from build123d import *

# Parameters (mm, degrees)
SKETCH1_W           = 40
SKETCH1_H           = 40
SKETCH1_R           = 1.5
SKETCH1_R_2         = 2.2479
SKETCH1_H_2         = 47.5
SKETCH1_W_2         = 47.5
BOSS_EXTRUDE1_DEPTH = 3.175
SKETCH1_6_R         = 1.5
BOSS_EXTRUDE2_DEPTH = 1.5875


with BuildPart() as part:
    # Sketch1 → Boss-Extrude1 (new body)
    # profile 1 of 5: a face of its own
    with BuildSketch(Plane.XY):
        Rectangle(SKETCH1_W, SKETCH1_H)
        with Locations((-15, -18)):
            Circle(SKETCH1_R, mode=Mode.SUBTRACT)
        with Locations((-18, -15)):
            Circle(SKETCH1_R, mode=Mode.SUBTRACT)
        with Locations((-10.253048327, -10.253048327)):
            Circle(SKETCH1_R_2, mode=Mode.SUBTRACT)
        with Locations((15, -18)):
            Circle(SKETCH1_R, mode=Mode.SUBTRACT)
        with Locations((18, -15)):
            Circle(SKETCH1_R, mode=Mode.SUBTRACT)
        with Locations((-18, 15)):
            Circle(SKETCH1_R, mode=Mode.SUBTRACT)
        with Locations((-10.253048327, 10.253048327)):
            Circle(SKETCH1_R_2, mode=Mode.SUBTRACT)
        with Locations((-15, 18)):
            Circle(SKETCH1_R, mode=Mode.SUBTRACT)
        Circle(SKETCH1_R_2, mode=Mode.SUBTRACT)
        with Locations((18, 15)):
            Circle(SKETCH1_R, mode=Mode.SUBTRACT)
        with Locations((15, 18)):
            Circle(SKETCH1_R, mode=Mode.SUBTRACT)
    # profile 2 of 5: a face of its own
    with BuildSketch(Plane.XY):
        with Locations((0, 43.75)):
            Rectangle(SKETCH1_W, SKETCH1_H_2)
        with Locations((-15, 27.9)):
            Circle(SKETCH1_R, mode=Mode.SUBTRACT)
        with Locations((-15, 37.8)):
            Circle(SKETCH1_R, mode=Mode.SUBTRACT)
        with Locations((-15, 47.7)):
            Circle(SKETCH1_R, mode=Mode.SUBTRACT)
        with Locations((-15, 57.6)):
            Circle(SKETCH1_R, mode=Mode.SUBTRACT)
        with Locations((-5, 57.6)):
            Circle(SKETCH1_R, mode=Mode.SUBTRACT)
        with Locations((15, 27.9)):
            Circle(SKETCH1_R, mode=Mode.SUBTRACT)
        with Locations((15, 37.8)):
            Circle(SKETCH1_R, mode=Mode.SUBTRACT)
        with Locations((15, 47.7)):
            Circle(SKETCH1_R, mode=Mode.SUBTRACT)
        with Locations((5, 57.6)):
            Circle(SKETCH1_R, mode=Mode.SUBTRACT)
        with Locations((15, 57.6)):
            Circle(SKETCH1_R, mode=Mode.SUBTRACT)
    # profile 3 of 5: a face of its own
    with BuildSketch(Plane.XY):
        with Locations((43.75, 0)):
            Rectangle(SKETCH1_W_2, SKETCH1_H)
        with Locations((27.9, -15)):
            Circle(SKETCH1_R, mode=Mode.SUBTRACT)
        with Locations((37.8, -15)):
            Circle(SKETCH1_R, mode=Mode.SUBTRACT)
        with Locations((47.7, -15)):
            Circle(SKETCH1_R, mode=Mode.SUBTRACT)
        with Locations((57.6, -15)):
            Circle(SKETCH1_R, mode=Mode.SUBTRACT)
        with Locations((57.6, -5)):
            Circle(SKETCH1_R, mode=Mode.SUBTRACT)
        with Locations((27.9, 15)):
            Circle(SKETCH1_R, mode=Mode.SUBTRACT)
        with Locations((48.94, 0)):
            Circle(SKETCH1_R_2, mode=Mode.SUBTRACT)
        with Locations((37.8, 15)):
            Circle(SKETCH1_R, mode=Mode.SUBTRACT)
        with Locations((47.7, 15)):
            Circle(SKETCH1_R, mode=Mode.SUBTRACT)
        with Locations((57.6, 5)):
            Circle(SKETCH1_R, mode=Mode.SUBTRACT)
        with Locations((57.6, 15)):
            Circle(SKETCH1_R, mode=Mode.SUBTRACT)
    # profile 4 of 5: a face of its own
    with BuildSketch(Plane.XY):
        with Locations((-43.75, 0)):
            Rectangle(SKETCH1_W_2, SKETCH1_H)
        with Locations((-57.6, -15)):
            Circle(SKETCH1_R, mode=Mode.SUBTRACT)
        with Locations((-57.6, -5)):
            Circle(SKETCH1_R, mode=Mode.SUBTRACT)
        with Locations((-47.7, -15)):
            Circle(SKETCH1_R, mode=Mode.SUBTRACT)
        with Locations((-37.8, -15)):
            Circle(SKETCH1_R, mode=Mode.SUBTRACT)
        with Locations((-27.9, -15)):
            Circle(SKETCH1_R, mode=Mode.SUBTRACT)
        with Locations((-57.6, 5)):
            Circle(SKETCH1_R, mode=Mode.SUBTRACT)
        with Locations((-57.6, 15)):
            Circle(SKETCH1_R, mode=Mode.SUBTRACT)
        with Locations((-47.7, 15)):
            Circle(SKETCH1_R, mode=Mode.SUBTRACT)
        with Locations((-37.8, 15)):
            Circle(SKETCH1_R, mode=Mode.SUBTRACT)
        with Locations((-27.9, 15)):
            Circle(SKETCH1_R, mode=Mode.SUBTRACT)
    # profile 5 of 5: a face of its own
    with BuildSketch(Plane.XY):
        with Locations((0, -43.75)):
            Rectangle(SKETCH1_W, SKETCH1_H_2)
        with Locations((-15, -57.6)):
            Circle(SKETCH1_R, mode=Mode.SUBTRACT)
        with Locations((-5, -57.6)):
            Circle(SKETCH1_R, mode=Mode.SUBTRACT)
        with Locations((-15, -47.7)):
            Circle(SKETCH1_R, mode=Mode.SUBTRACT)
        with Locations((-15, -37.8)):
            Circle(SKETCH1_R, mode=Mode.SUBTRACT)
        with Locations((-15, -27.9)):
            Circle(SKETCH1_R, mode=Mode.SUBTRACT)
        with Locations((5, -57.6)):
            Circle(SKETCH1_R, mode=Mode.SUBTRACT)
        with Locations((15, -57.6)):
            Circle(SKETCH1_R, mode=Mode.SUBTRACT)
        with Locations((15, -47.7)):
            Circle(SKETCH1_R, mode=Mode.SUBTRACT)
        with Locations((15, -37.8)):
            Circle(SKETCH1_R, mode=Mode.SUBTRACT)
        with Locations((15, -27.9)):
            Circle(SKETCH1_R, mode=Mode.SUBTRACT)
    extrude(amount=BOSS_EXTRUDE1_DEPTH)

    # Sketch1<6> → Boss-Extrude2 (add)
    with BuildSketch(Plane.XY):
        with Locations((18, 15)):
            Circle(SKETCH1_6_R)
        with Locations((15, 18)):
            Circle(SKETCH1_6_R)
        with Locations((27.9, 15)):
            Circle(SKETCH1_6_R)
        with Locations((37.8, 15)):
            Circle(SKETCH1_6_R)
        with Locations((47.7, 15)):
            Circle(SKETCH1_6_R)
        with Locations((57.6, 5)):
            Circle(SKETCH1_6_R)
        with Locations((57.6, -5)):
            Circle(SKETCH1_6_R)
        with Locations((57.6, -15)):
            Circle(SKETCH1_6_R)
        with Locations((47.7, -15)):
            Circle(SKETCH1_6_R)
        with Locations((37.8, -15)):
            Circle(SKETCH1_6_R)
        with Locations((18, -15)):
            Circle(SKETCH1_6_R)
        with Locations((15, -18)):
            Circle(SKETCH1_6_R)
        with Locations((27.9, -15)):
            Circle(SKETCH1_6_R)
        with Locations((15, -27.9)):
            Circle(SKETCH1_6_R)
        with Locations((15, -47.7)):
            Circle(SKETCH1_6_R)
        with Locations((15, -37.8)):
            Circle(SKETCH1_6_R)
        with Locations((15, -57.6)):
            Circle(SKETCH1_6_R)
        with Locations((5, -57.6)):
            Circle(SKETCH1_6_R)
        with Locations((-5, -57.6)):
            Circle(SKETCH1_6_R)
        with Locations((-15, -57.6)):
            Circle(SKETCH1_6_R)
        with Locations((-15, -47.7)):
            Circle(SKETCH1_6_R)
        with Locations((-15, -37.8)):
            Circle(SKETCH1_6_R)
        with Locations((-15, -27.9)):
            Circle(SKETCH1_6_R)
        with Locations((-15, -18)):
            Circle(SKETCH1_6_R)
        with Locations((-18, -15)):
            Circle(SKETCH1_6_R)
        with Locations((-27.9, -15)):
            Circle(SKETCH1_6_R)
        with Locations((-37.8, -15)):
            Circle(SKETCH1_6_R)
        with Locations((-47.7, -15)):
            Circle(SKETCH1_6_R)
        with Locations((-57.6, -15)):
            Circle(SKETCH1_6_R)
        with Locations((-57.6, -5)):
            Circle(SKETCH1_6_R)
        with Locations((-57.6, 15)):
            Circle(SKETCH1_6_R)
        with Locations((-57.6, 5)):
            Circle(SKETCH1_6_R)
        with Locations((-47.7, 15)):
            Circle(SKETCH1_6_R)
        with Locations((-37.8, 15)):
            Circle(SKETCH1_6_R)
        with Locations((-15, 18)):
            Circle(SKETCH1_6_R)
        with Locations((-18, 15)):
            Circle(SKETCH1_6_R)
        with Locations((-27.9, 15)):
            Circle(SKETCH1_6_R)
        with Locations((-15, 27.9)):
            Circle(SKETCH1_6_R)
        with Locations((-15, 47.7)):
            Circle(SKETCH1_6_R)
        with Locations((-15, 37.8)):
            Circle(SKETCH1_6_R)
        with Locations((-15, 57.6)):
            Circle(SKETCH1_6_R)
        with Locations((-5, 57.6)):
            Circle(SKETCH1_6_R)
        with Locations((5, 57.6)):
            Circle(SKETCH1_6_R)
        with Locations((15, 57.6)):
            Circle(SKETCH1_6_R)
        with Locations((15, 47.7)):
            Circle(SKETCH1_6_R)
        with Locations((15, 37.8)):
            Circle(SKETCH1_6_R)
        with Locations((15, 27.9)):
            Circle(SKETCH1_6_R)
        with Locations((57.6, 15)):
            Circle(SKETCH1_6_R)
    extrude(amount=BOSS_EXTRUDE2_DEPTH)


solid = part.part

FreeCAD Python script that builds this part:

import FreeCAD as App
import Part
import Sketcher

V = App.Vector
Q = App.Units.Quantity

doc = App.newDocument("Part")
body = doc.addObject("PartDesign::Body", "Body")

# Sketch on XY plane
sketch1 = body.newObject("Sketcher::SketchObject", "Sketch")
sketch1.AttachmentSupport = (doc.getObject("XY_Plane"), [""])
sketch1.MapMode = "FlatFace"
sketch1.addGeometry(Part.LineSegment(V(-67.5, 20, 0), V(-67.5, -20, 0)), False)
sketch1.addGeometry(Part.LineSegment(V(-67.5, -20, 0), V(-20, -20, 0)), False)
sketch1.addGeometry(Part.LineSegment(V(-20, -20, 0), V(-20, -67.5, 0)), False)
sketch1.addGeometry(Part.LineSegment(V(-20, -67.5, 0), V(20, -67.5, 0)), False)
sketch1.addGeometry(Part.LineSegment(V(20, -67.5, 0), V(20, -20, 0)), False)
sketch1.addGeometry(Part.LineSegment(V(20, -20, 0), V(67.5, -20, 0)), False)
sketch1.addGeometry(Part.LineSegment(V(67.5, -20, 0), V(67.5, 20, 0)), False)
sketch1.addGeometry(Part.LineSegment(V(67.5, 20, 0), V(20, 20, 0)), False)
sketch1.addGeometry(Part.LineSegment(V(20, 20, 0), V(20, 67.5, 0)), False)
sketch1.addGeometry(Part.LineSegment(V(20, 67.5, 0), V(-20, 67.5, 0)), False)
sketch1.addGeometry(Part.LineSegment(V(-20, 67.5, 0), V(-20, 20, 0)), False)
sketch1.addGeometry(Part.LineSegment(V(-20, 20, 0), V(-67.5, 20, 0)), False)
sketch1.addGeometry(Part.Circle(V(-15, -18, 0), V(0, 0, 1), 1.5), False)
sketch1.addGeometry(Part.Circle(V(-18, -15, 0), V(0, 0, 1), 1.5), False)
sketch1.addGeometry(Part.Circle(V(-10.3, -10.3, 0), V(0, 0, 1), 2.2), False)
sketch1.addGeometry(Part.Circle(V(15, -18, 0), V(0, 0, 1), 1.5), False)
sketch1.addGeometry(Part.Circle(V(18, -15, 0), V(0, 0, 1), 1.5), False)
sketch1.addGeometry(Part.Circle(V(-10.3, 10.3, 0), V(0, 0, 1), 2.2), False)
sketch1.addGeometry(Part.Circle(V(-18, 15, 0), V(0, 0, 1), 1.5), False)
sketch1.addGeometry(Part.Circle(V(-15, 18, 0), V(0, 0, 1), 1.5), False)
sketch1.addGeometry(Part.Circle(V(0, 0, 0), V(0, 0, 1), 2.2), False)
sketch1.addGeometry(Part.Circle(V(18, 15, 0), V(0, 0, 1), 1.5), False)
sketch1.addGeometry(Part.Circle(V(15, 18, 0), V(0, 0, 1), 1.5), False)
sketch1.addGeometry(Part.Circle(V(-27.9, 15, 0), V(0, 0, 1), 1.5), False)
sketch1.addGeometry(Part.Circle(V(-57.6, -15, 0), V(0, 0, 1), 1.5), False)
sketch1.addGeometry(Part.Circle(V(-47.7, -15, 0), V(0, 0, 1), 1.5), False)
sketch1.addGeometry(Part.Circle(V(-57.6, -5, 0), V(0, 0, 1), 1.5), False)
sketch1.addGeometry(Part.Circle(V(-37.8, -15, 0), V(0, 0, 1), 1.5), False)
sketch1.addGeometry(Part.Circle(V(-27.9, -15, 0), V(0, 0, 1), 1.5), False)
sketch1.addGeometry(Part.Circle(V(-57.6, 5, 0), V(0, 0, 1), 1.5), False)
sketch1.addGeometry(Part.Circle(V(-57.6, 15, 0), V(0, 0, 1), 1.5), False)
sketch1.addGeometry(Part.Circle(V(-47.7, 15, 0), V(0, 0, 1), 1.5), False)
sketch1.addGeometry(Part.Circle(V(-37.8, 15, 0), V(0, 0, 1), 1.5), False)
sketch1.addGeometry(Part.Circle(V(15, -27.9, 0), V(0, 0, 1), 1.5), False)
sketch1.addGeometry(Part.Circle(V(-15, -57.6, 0), V(0, 0, 1), 1.5), False)
sketch1.addGeometry(Part.Circle(V(-5, -57.6, 0), V(0, 0, 1), 1.5), False)
sketch1.addGeometry(Part.Circle(V(-15, -47.7, 0), V(0, 0, 1), 1.5), False)
sketch1.addGeometry(Part.Circle(V(5, -57.6, 0), V(0, 0, 1), 1.5), False)
sketch1.addGeometry(Part.Circle(V(15, -57.6, 0), V(0, 0, 1), 1.5), False)
sketch1.addGeometry(Part.Circle(V(15, -47.7, 0), V(0, 0, 1), 1.5), False)
sketch1.addGeometry(Part.Circle(V(-15, -37.8, 0), V(0, 0, 1), 1.5), False)
sketch1.addGeometry(Part.Circle(V(-15, -27.9, 0), V(0, 0, 1), 1.5), False)
sketch1.addGeometry(Part.Circle(V(15, -37.8, 0), V(0, 0, 1), 1.5), False)
sketch1.addGeometry(Part.Circle(V(15, 57.6, 0), V(0, 0, 1), 1.5), False)
sketch1.addGeometry(Part.Circle(V(-15, 27.9, 0), V(0, 0, 1), 1.5), False)
sketch1.addGeometry(Part.Circle(V(-15, 37.8, 0), V(0, 0, 1), 1.5), False)
sketch1.addGeometry(Part.Circle(V(15, 27.9, 0), V(0, 0, 1), 1.5), False)
sketch1.addGeometry(Part.Circle(V(15, 37.8, 0), V(0, 0, 1), 1.5), False)
sketch1.addGeometry(Part.Circle(V(-15, 47.7, 0), V(0, 0, 1), 1.5), False)
sketch1.addGeometry(Part.Circle(V(-15, 57.6, 0), V(0, 0, 1), 1.5), False)
sketch1.addGeometry(Part.Circle(V(-5, 57.6, 0), V(0, 0, 1), 1.5), False)
sketch1.addGeometry(Part.Circle(V(15, 47.7, 0), V(0, 0, 1), 1.5), False)
sketch1.addGeometry(Part.Circle(V(5, 57.6, 0), V(0, 0, 1), 1.5), False)
sketch1.addGeometry(Part.Circle(V(57.6, 15, 0), V(0, 0, 1), 1.5), False)
sketch1.addGeometry(Part.Circle(V(27.9, -15, 0), V(0, 0, 1), 1.5), False)
sketch1.addGeometry(Part.Circle(V(37.8, -15, 0), V(0, 0, 1), 1.5), False)
sketch1.addGeometry(Part.Circle(V(47.7, -15, 0), V(0, 0, 1), 1.5), False)
sketch1.addGeometry(Part.Circle(V(57.6, -15, 0), V(0, 0, 1), 1.5), False)
sketch1.addGeometry(Part.Circle(V(57.6, -5, 0), V(0, 0, 1), 1.5), False)
sketch1.addGeometry(Part.Circle(V(27.9, 15, 0), V(0, 0, 1), 1.5), False)
sketch1.addGeometry(Part.Circle(V(37.8, 15, 0), V(0, 0, 1), 1.5), False)
sketch1.addGeometry(Part.Circle(V(48.9, 0, 0), V(0, 0, 1), 2.2), False)
sketch1.addGeometry(Part.Circle(V(57.6, 5, 0), V(0, 0, 1), 1.5), False)
sketch1.addGeometry(Part.Circle(V(47.7, 15, 0), V(0, 0, 1), 1.5), False)
sketch1.addConstraint(Sketcher.Constraint("Coincident", 0, 2, 1, 1))
sketch1.addConstraint(Sketcher.Constraint("Coincident", 1, 2, 2, 1))
sketch1.addConstraint(Sketcher.Constraint("Coincident", 2, 2, 3, 1))
sketch1.addConstraint(Sketcher.Constraint("Coincident", 3, 2, 4, 1))
sketch1.addConstraint(Sketcher.Constraint("Coincident", 4, 2, 5, 1))
sketch1.addConstraint(Sketcher.Constraint("Coincident", 5, 2, 6, 1))
sketch1.addConstraint(Sketcher.Constraint("Coincident", 6, 2, 7, 1))
sketch1.addConstraint(Sketcher.Constraint("Coincident", 7, 2, 8, 1))
sketch1.addConstraint(Sketcher.Constraint("Coincident", 8, 2, 9, 1))
sketch1.addConstraint(Sketcher.Constraint("Coincident", 9, 2, 10, 1))
sketch1.addConstraint(Sketcher.Constraint("Coincident", 10, 2, 11, 1))
sketch1.addConstraint(Sketcher.Constraint("Coincident", 11, 2, 0, 1))
sketch1.addConstraint(Sketcher.Constraint("Vertical", 0))
sketch1.addConstraint(Sketcher.Constraint("Horizontal", 1))
sketch1.addConstraint(Sketcher.Constraint("Vertical", 2))
sketch1.addConstraint(Sketcher.Constraint("Horizontal", 3))
sketch1.addConstraint(Sketcher.Constraint("Vertical", 4))
sketch1.addConstraint(Sketcher.Constraint("Horizontal", 5))
sketch1.addConstraint(Sketcher.Constraint("Vertical", 6))
sketch1.addConstraint(Sketcher.Constraint("Horizontal", 7))
sketch1.addConstraint(Sketcher.Constraint("Vertical", 8))
sketch1.addConstraint(Sketcher.Constraint("Horizontal", 9))
sketch1.addConstraint(Sketcher.Constraint("Vertical", 10))
sketch1.addConstraint(Sketcher.Constraint("Horizontal", 11))
sketch1.addConstraint(Sketcher.Constraint("Coincident", 20, 3, -1, 1))
sketch1.addConstraint(Sketcher.Constraint("Equal", 12, 13))
sketch1.addConstraint(Sketcher.Constraint("Equal", 13, 15))
sketch1.addConstraint(Sketcher.Constraint("Equal", 15, 16))
sketch1.addConstraint(Sketcher.Constraint("Equal", 14, 17))
sketch1.addConstraint(Sketcher.Constraint("Equal", 16, 18))
sketch1.addConstraint(Sketcher.Constraint("Equal", 18, 19))
sketch1.addConstraint(Sketcher.Constraint("Equal", 17, 20))
sketch1.addConstraint(Sketcher.Constraint("Equal", 19, 21))
sketch1.addConstraint(Sketcher.Constraint("Equal", 21, 22))
sketch1.addConstraint(Sketcher.Constraint("Equal", 22, 23))
sketch1.addConstraint(Sketcher.Constraint("Equal", 23, 24))
sketch1.addConstraint(Sketcher.Constraint("Equal", 24, 25))
sketch1.addConstraint(Sketcher.Constraint("Equal", 25, 26))
sketch1.addConstraint(Sketcher.Constraint("Equal", 26, 27))
sketch1.addConstraint(Sketcher.Constraint("Equal", 27, 28))
sketch1.addConstraint(Sketcher.Constraint("Equal", 28, 29))
sketch1.addConstraint(Sketcher.Constraint("Equal", 29, 30))
sketch1.addConstraint(Sketcher.Constraint("Equal", 30, 31))
sketch1.addConstraint(Sketcher.Constraint("Equal", 31, 32))
sketch1.addConstraint(Sketcher.Constraint("Equal", 32, 33))
sketch1.addConstraint(Sketcher.Constraint("Equal", 33, 34))
sketch1.addConstraint(Sketcher.Constraint("Equal", 34, 35))
sketch1.addConstraint(Sketcher.Constraint("Equal", 35, 36))
sketch1.addConstraint(Sketcher.Constraint("Equal", 36, 37))
sketch1.addConstraint(Sketcher.Constraint("Equal", 37, 38))
sketch1.addConstraint(Sketcher.Constraint("Equal", 38, 39))
sketch1.addConstraint(Sketcher.Constraint("Equal", 39, 40))
sketch1.addConstraint(Sketcher.Constraint("Equal", 40, 41))
sketch1.addConstraint(Sketcher.Constraint("Equal", 41, 42))
sketch1.addConstraint(Sketcher.Constraint("Equal", 42, 43))
sketch1.addConstraint(Sketcher.Constraint("Equal", 43, 44))
sketch1.addConstraint(Sketcher.Constraint("Equal", 44, 45))
sketch1.addConstraint(Sketcher.Constraint("Equal", 45, 46))
sketch1.addConstraint(Sketcher.Constraint("Equal", 46, 47))
sketch1.addConstraint(Sketcher.Constraint("Equal", 47, 48))
sketch1.addConstraint(Sketcher.Constraint("Equal", 48, 49))
sketch1.addConstraint(Sketcher.Constraint("Equal", 49, 50))
sketch1.addConstraint(Sketcher.Constraint("Equal", 50, 51))
sketch1.addConstraint(Sketcher.Constraint("Equal", 51, 52))
sketch1.addConstraint(Sketcher.Constraint("Equal", 52, 53))
sketch1.addConstraint(Sketcher.Constraint("Equal", 53, 54))
sketch1.addConstraint(Sketcher.Constraint("Equal", 54, 55))
sketch1.addConstraint(Sketcher.Constraint("Equal", 55, 56))
sketch1.addConstraint(Sketcher.Constraint("Equal", 56, 57))
sketch1.addConstraint(Sketcher.Constraint("Equal", 57, 58))
sketch1.addConstraint(Sketcher.Constraint("Equal", 58, 59))
sketch1.addConstraint(Sketcher.Constraint("Equal", 59, 60))
sketch1.addConstraint(Sketcher.Constraint("Equal", 20, 61))
sketch1.addConstraint(Sketcher.Constraint("Equal", 60, 62))
sketch1.addConstraint(Sketcher.Constraint("Equal", 62, 63))
sketch1.addConstraint(Sketcher.Constraint("Symmetric", 16, 3, 18, 3, -1, 1))
sketch1.addConstraint(Sketcher.Constraint("Symmetric", 15, 3, 19, 3, -1, 1))
sketch1.addConstraint(Sketcher.Constraint("Symmetric", 13, 3, 21, 3, -1, 1))
sketch1.addConstraint(Sketcher.Constraint("Symmetric", 12, 3, 22, 3, -1, 1))
sketch1.addConstraint(Sketcher.Constraint("Symmetric", 34, 3, 43, 3, -1, 1))
sketch1.addConstraint(Sketcher.Constraint("Symmetric", 33, 3, 44, 3, -1, 1))
sketch1.addConstraint(Sketcher.Constraint("Symmetric", 42, 3, 45, 3, -1, 1))
sketch1.addConstraint(Sketcher.Constraint("Symmetric", 41, 3, 46, 3, -1, 1))
sketch1.addConstraint(Sketcher.Constraint("Symmetric", 40, 3, 47, 3, -1, 1))
sketch1.addConstraint(Sketcher.Constraint("Symmetric", 39, 3, 48, 3, -1, 1))
sketch1.addConstraint(Sketcher.Constraint("Symmetric", 38, 3, 49, 3, -1, 1))
sketch1.addConstraint(Sketcher.Constraint("Symmetric", 37, 3, 50, 3, -1, 1))
sketch1.addConstraint(Sketcher.Constraint("Symmetric", 36, 3, 51, 3, -1, 1))
sketch1.addConstraint(Sketcher.Constraint("Symmetric", 35, 3, 52, 3, -1, 1))
sketch1.addConstraint(Sketcher.Constraint("Symmetric", 24, 3, 53, 3, -1, 1))
sketch1.addConstraint(Sketcher.Constraint("Symmetric", 23, 3, 54, 3, -1, 1))
sketch1.addConstraint(Sketcher.Constraint("Symmetric", 32, 3, 55, 3, -1, 1))
sketch1.addConstraint(Sketcher.Constraint("Symmetric", 31, 3, 56, 3, -1, 1))
sketch1.addConstraint(Sketcher.Constraint("Symmetric", 30, 3, 57, 3, -1, 1))
sketch1.addConstraint(Sketcher.Constraint("Symmetric", 29, 3, 58, 3, -1, 1))
sketch1.addConstraint(Sketcher.Constraint("Symmetric", 28, 3, 59, 3, -1, 1))
sketch1.addConstraint(Sketcher.Constraint("Symmetric", 27, 3, 60, 3, -1, 1))
sketch1.addConstraint(Sketcher.Constraint("Symmetric", 26, 3, 62, 3, -1, 1))
sketch1.addConstraint(Sketcher.Constraint("Symmetric", 25, 3, 63, 3, -1, 1))
sketch1.addConstraint(Sketcher.Constraint("Symmetric", 0, 2, 6, 2, -1, 1))
sketch1.addConstraint(Sketcher.Constraint("Symmetric", 2, 2, 8, 2, -1, 1))
sketch1.addConstraint(Sketcher.Constraint("Symmetric", 4, 2, 10, 2, -1, 1))
sketch1.addConstraint(Sketcher.Constraint("Symmetric", 12, 3, 15, 3, -2))
sketch1.addConstraint(Sketcher.Constraint("Symmetric", 13, 3, 16, 3, -2))
sketch1.addConstraint(Sketcher.Constraint("Symmetric", 35, 3, 37, 3, -2))
sketch1.addConstraint(Sketcher.Constraint("Symmetric", 34, 3, 38, 3, -2))
sketch1.addConstraint(Sketcher.Constraint("Symmetric", 36, 3, 39, 3, -2))
sketch1.addConstraint(Sketcher.Constraint("Symmetric", 33, 3, 41, 3, -2))
sketch1.addConstraint(Sketcher.Constraint("Symmetric", 40, 3, 42, 3, -2))
sketch1.addConstraint(Sketcher.Constraint("Symmetric", 30, 3, 53, 3, -2))
sketch1.addConstraint(Sketcher.Constraint("Symmetric", 28, 3, 54, 3, -2))
sketch1.addConstraint(Sketcher.Constraint("Symmetric", 27, 3, 55, 3, -2))
sketch1.addConstraint(Sketcher.Constraint("Symmetric", 25, 3, 56, 3, -2))
sketch1.addConstraint(Sketcher.Constraint("Symmetric", 26, 3, 58, 3, -2))
sketch1.addConstraint(Sketcher.Constraint("Symmetric", 1, 2, 4, 2, -2))
sketch1.addConstraint(Sketcher.Constraint("Symmetric", 14, 3, 17, 3, -1))
sketch1.addConstraint(Sketcher.Constraint("PointOnObject", 61, 3, -1))
sketch1.addConstraint(Sketcher.Constraint("Horizontal", 21, 3, 23, 3))
sketch1.addConstraint(Sketcher.Constraint("Horizontal", 16, 3, 24, 3))
sketch1.addConstraint(Sketcher.Constraint("Horizontal", 24, 3, 25, 3))
sketch1.addConstraint(Sketcher.Constraint("Horizontal", 25, 3, 27, 3))
sketch1.addConstraint(Sketcher.Constraint("Horizontal", 34, 3, 35, 3))
sketch1.addConstraint(Sketcher.Constraint("Vertical", 24, 3, 26, 3))
sketch1.addConstraint(Sketcher.Constraint("Vertical", 22, 3, 33, 3))
sketch1.addConstraint(Sketcher.Constraint("Vertical", 19, 3, 34, 3))
sketch1.addConstraint(Sketcher.Constraint("Vertical", 34, 3, 36, 3))
sketch1.addConstraint(Sketcher.Constraint("Vertical", 36, 3, 40, 3))
sketch1.addConstraint(Sketcher.Constraint("Equal", 9, 0))
sketch1.addConstraint(Sketcher.Constraint("Equal", 11, 2))
sketch1.addConstraint(Sketcher.Constraint("Diameter", 12, Q("3 mm")))
sketch1.addConstraint(Sketcher.Constraint("DistanceX", 3, 1, 3, 2, Q("40 mm")))
sketch1.addConstraint(Sketcher.Constraint("DistanceX", 1, 1, 1, 2, Q("47.5 mm")))
sketch1.addConstraint(Sketcher.Constraint("DistanceX", 12, 3, -1, 1, Q("15 mm")))
sketch1.addConstraint(Sketcher.Constraint("DistanceY", 12, 3, -1, 1, Q("18 mm")))
sketch1.addConstraint(Sketcher.Constraint("DistanceX", 13, 3, -1, 1, Q("18 mm")))
sketch1.addConstraint(Sketcher.Constraint("DistanceY", 13, 3, -1, 1, Q("15 mm")))
sketch1.addConstraint(Sketcher.Constraint("DistanceY", 26, 3, -1, 1, Q("5 mm")))
sketch1.addConstraint(Sketcher.Constraint("DistanceX", 35, 3, -1, 1, Q("5 mm")))
sketch1.addConstraint(Sketcher.Constraint("Diameter", 14, Q("4.4958 mm")))
sketch1.addConstraint(Sketcher.Constraint("DistanceX", 23, 3, -1, 1, Q("27.9 mm")))
sketch1.addConstraint(Sketcher.Constraint("DistanceX", 24, 3, -1, 1, Q("57.6 mm")))
sketch1.addConstraint(Sketcher.Constraint("DistanceX", 25, 3, -1, 1, Q("47.7 mm")))
sketch1.addConstraint(Sketcher.Constraint("DistanceX", 27, 3, -1, 1, Q("37.8 mm")))
sketch1.addConstraint(Sketcher.Constraint("DistanceY", 33, 3, -1, 1, Q("27.9 mm")))
sketch1.addConstraint(Sketcher.Constraint("DistanceY", 34, 3, -1, 1, Q("57.6 mm")))
sketch1.addConstraint(Sketcher.Constraint("DistanceY", 36, 3, -1, 1, Q("47.7 mm")))
sketch1.addConstraint(Sketcher.Constraint("DistanceY", 40, 3, -1, 1, Q("37.8 mm")))
sketch1.addConstraint(Sketcher.Constraint("DistanceX", -1, 1, 61, 3, Q("48.94 mm")))
sketch1.addConstraint(Sketcher.Constraint("DistanceX", 14, 3, -1, 1, Q("10.253048 mm")))
sketch1.addConstraint(Sketcher.Constraint("DistanceY", 14, 3, -1, 1, Q("10.253048 mm")))
pad1 = body.newObject("PartDesign::Pad", "Pad")
pad1.Profile = sketch1
pad1.Length = 3.175

# Sketch on XY plane
sketch2 = body.newObject("Sketcher::SketchObject", "Sketch001")
sketch2.AttachmentSupport = (doc.getObject("XY_Plane"), [""])
sketch2.MapMode = "FlatFace"
sketch2.addGeometry(Part.Circle(V(18, 15, 0), V(0, 0, 1), 1.5), False)
sketch2.addGeometry(Part.Circle(V(15, 18, 0), V(0, 0, 1), 1.5), False)
sketch2.addGeometry(Part.Circle(V(27.9, 15, 0), V(0, 0, 1), 1.5), False)
sketch2.addGeometry(Part.Circle(V(37.8, 15, 0), V(0, 0, 1), 1.5), False)
sketch2.addGeometry(Part.Circle(V(47.7, 15, 0), V(0, 0, 1), 1.5), False)
sketch2.addGeometry(Part.Circle(V(57.6, 5, 0), V(0, 0, 1), 1.5), False)
sketch2.addGeometry(Part.Circle(V(57.6, -5, 0), V(0, 0, 1), 1.5), False)
sketch2.addGeometry(Part.Circle(V(57.6, -15, 0), V(0, 0, 1), 1.5), False)
sketch2.addGeometry(Part.Circle(V(47.7, -15, 0), V(0, 0, 1), 1.5), False)
sketch2.addGeometry(Part.Circle(V(37.8, -15, 0), V(0, 0, 1), 1.5), False)
sketch2.addGeometry(Part.Circle(V(18, -15, 0), V(0, 0, 1), 1.5), False)
sketch2.addGeometry(Part.Circle(V(15, -18, 0), V(0, 0, 1), 1.5), False)
sketch2.addGeometry(Part.Circle(V(27.9, -15, 0), V(0, 0, 1), 1.5), False)
sketch2.addGeometry(Part.Circle(V(15, -27.9, 0), V(0, 0, 1), 1.5), False)
sketch2.addGeometry(Part.Circle(V(15, -47.7, 0), V(0, 0, 1), 1.5), False)
sketch2.addGeometry(Part.Circle(V(15, -37.8, 0), V(0, 0, 1), 1.5), False)
sketch2.addGeometry(Part.Circle(V(15, -57.6, 0), V(0, 0, 1), 1.5), False)
sketch2.addGeometry(Part.Circle(V(5, -57.6, 0), V(0, 0, 1), 1.5), False)
sketch2.addGeometry(Part.Circle(V(-5, -57.6, 0), V(0, 0, 1), 1.5), False)
sketch2.addGeometry(Part.Circle(V(-15, -57.6, 0), V(0, 0, 1), 1.5), False)
sketch2.addGeometry(Part.Circle(V(-15, -47.7, 0), V(0, 0, 1), 1.5), False)
sketch2.addGeometry(Part.Circle(V(-15, -37.8, 0), V(0, 0, 1), 1.5), False)
sketch2.addGeometry(Part.Circle(V(-15, -27.9, 0), V(0, 0, 1), 1.5), False)
sketch2.addGeometry(Part.Circle(V(-15, -18, 0), V(0, 0, 1), 1.5), False)
sketch2.addGeometry(Part.Circle(V(-18, -15, 0), V(0, 0, 1), 1.5), False)
sketch2.addGeometry(Part.Circle(V(-27.9, -15, 0), V(0, 0, 1), 1.5), False)
sketch2.addGeometry(Part.Circle(V(-37.8, -15, 0), V(0, 0, 1), 1.5), False)
sketch2.addGeometry(Part.Circle(V(-47.7, -15, 0), V(0, 0, 1), 1.5), False)
sketch2.addGeometry(Part.Circle(V(-57.6, -15, 0), V(0, 0, 1), 1.5), False)
sketch2.addGeometry(Part.Circle(V(-57.6, -5, 0), V(0, 0, 1), 1.5), False)
sketch2.addGeometry(Part.Circle(V(-57.6, 15, 0), V(0, 0, 1), 1.5), False)
sketch2.addGeometry(Part.Circle(V(-57.6, 5, 0), V(0, 0, 1), 1.5), False)
sketch2.addGeometry(Part.Circle(V(-47.7, 15, 0), V(0, 0, 1), 1.5), False)
sketch2.addGeometry(Part.Circle(V(-37.8, 15, 0), V(0, 0, 1), 1.5), False)
sketch2.addGeometry(Part.Circle(V(-15, 18, 0), V(0, 0, 1), 1.5), False)
sketch2.addGeometry(Part.Circle(V(-18, 15, 0), V(0, 0, 1), 1.5), False)
sketch2.addGeometry(Part.Circle(V(-27.9, 15, 0), V(0, 0, 1), 1.5), False)
sketch2.addGeometry(Part.Circle(V(-15, 27.9, 0), V(0, 0, 1), 1.5), False)
sketch2.addGeometry(Part.Circle(V(-15, 47.7, 0), V(0, 0, 1), 1.5), False)
sketch2.addGeometry(Part.Circle(V(-15, 37.8, 0), V(0, 0, 1), 1.5), False)
sketch2.addGeometry(Part.Circle(V(-15, 57.6, 0), V(0, 0, 1), 1.5), False)
sketch2.addGeometry(Part.Circle(V(-5, 57.6, 0), V(0, 0, 1), 1.5), False)
sketch2.addGeometry(Part.Circle(V(5, 57.6, 0), V(0, 0, 1), 1.5), False)
sketch2.addGeometry(Part.Circle(V(15, 57.6, 0), V(0, 0, 1), 1.5), False)
sketch2.addGeometry(Part.Circle(V(15, 47.7, 0), V(0, 0, 1), 1.5), False)
sketch2.addGeometry(Part.Circle(V(15, 37.8, 0), V(0, 0, 1), 1.5), False)
sketch2.addGeometry(Part.Circle(V(15, 27.9, 0), V(0, 0, 1), 1.5), False)
sketch2.addGeometry(Part.Circle(V(57.6, 15, 0), V(0, 0, 1), 1.5), False)
sketch2.addConstraint(Sketcher.Constraint("Equal", 0, 1))
sketch2.addConstraint(Sketcher.Constraint("Equal", 1, 2))
sketch2.addConstraint(Sketcher.Constraint("Equal", 2, 3))
sketch2.addConstraint(Sketcher.Constraint("Equal", 3, 4))
sketch2.addConstraint(Sketcher.Constraint("Equal", 4, 5))
sketch2.addConstraint(Sketcher.Constraint("Equal", 5, 6))
sketch2.addConstraint(Sketcher.Constraint("Equal", 6, 7))
sketch2.addConstraint(Sketcher.Constraint("Equal", 7, 8))
sketch2.addConstraint(Sketcher.Constraint("Equal", 8, 9))
sketch2.addConstraint(Sketcher.Constraint("Equal", 9, 10))
sketch2.addConstraint(Sketcher.Constraint("Equal", 10, 11))
sketch2.addConstraint(Sketcher.Constraint("Equal", 11, 12))
sketch2.addConstraint(Sketcher.Constraint("Equal", 12, 13))
sketch2.addConstraint(Sketcher.Constraint("Equal", 13, 14))
sketch2.addConstraint(Sketcher.Constraint("Equal", 14, 15))
sketch2.addConstraint(Sketcher.Constraint("Equal", 15, 16))
sketch2.addConstraint(Sketcher.Constraint("Equal", 16, 17))
sketch2.addConstraint(Sketcher.Constraint("Equal", 17, 18))
sketch2.addConstraint(Sketcher.Constraint("Equal", 18, 19))
sketch2.addConstraint(Sketcher.Constraint("Equal", 19, 20))
sketch2.addConstraint(Sketcher.Constraint("Equal", 20, 21))
sketch2.addConstraint(Sketcher.Constraint("Equal", 21, 22))
sketch2.addConstraint(Sketcher.Constraint("Equal", 22, 23))
sketch2.addConstraint(Sketcher.Constraint("Equal", 23, 24))
sketch2.addConstraint(Sketcher.Constraint("Equal", 24, 25))
sketch2.addConstraint(Sketcher.Constraint("Equal", 25, 26))
sketch2.addConstraint(Sketcher.Constraint("Equal", 26, 27))
sketch2.addConstraint(Sketcher.Constraint("Equal", 27, 28))
sketch2.addConstraint(Sketcher.Constraint("Equal", 28, 29))
sketch2.addConstraint(Sketcher.Constraint("Equal", 29, 30))
sketch2.addConstraint(Sketcher.Constraint("Equal", 30, 31))
sketch2.addConstraint(Sketcher.Constraint("Equal", 31, 32))
sketch2.addConstraint(Sketcher.Constraint("Equal", 32, 33))
sketch2.addConstraint(Sketcher.Constraint("Equal", 33, 34))
sketch2.addConstraint(Sketcher.Constraint("Equal", 34, 35))
sketch2.addConstraint(Sketcher.Constraint("Equal", 35, 36))
sketch2.addConstraint(Sketcher.Constraint("Equal", 36, 37))
sketch2.addConstraint(Sketcher.Constraint("Equal", 37, 38))
sketch2.addConstraint(Sketcher.Constraint("Equal", 38, 39))
sketch2.addConstraint(Sketcher.Constraint("Equal", 39, 40))
sketch2.addConstraint(Sketcher.Constraint("Equal", 40, 41))
sketch2.addConstraint(Sketcher.Constraint("Equal", 41, 42))
sketch2.addConstraint(Sketcher.Constraint("Equal", 42, 43))
sketch2.addConstraint(Sketcher.Constraint("Equal", 43, 44))
sketch2.addConstraint(Sketcher.Constraint("Equal", 44, 45))
sketch2.addConstraint(Sketcher.Constraint("Equal", 45, 46))
sketch2.addConstraint(Sketcher.Constraint("Equal", 46, 47))
sketch2.addConstraint(Sketcher.Constraint("Symmetric", 1, 3, 23, 3, -1, 1))
sketch2.addConstraint(Sketcher.Constraint("Symmetric", 0, 3, 24, 3, -1, 1))
sketch2.addConstraint(Sketcher.Constraint("Symmetric", 2, 3, 25, 3, -1, 1))
sketch2.addConstraint(Sketcher.Constraint("Symmetric", 3, 3, 26, 3, -1, 1))
sketch2.addConstraint(Sketcher.Constraint("Symmetric", 4, 3, 27, 3, -1, 1))
sketch2.addConstraint(Sketcher.Constraint("Symmetric", 5, 3, 29, 3, -1, 1))
sketch2.addConstraint(Sketcher.Constraint("Symmetric", 7, 3, 30, 3, -1, 1))
sketch2.addConstraint(Sketcher.Constraint("Symmetric", 6, 3, 31, 3, -1, 1))
sketch2.addConstraint(Sketcher.Constraint("Symmetric", 8, 3, 32, 3, -1, 1))
sketch2.addConstraint(Sketcher.Constraint("Symmetric", 9, 3, 33, 3, -1, 1))
sketch2.addConstraint(Sketcher.Constraint("Symmetric", 11, 3, 34, 3, -1, 1))
sketch2.addConstraint(Sketcher.Constraint("Symmetric", 10, 3, 35, 3, -1, 1))
sketch2.addConstraint(Sketcher.Constraint("Symmetric", 12, 3, 36, 3, -1, 1))
sketch2.addConstraint(Sketcher.Constraint("Symmetric", 13, 3, 37, 3, -1, 1))
sketch2.addConstraint(Sketcher.Constraint("Symmetric", 14, 3, 38, 3, -1, 1))
sketch2.addConstraint(Sketcher.Constraint("Symmetric", 15, 3, 39, 3, -1, 1))
sketch2.addConstraint(Sketcher.Constraint("Symmetric", 16, 3, 40, 3, -1, 1))
sketch2.addConstraint(Sketcher.Constraint("Symmetric", 17, 3, 41, 3, -1, 1))
sketch2.addConstraint(Sketcher.Constraint("Symmetric", 18, 3, 42, 3, -1, 1))
sketch2.addConstraint(Sketcher.Constraint("Symmetric", 19, 3, 43, 3, -1, 1))
sketch2.addConstraint(Sketcher.Constraint("Symmetric", 20, 3, 44, 3, -1, 1))
sketch2.addConstraint(Sketcher.Constraint("Symmetric", 21, 3, 45, 3, -1, 1))
sketch2.addConstraint(Sketcher.Constraint("Symmetric", 22, 3, 46, 3, -1, 1))
sketch2.addConstraint(Sketcher.Constraint("Symmetric", 28, 3, 47, 3, -1, 1))
sketch2.addConstraint(Sketcher.Constraint("Symmetric", 17, 3, 18, 3, -2))
sketch2.addConstraint(Sketcher.Constraint("Symmetric", 16, 3, 19, 3, -2))
sketch2.addConstraint(Sketcher.Constraint("Symmetric", 14, 3, 20, 3, -2))
sketch2.addConstraint(Sketcher.Constraint("Symmetric", 15, 3, 21, 3, -2))
sketch2.addConstraint(Sketcher.Constraint("Symmetric", 13, 3, 22, 3, -2))
sketch2.addConstraint(Sketcher.Constraint("Symmetric", 11, 3, 23, 3, -2))
sketch2.addConstraint(Sketcher.Constraint("Symmetric", 10, 3, 24, 3, -2))
sketch2.addConstraint(Sketcher.Constraint("Symmetric", 12, 3, 25, 3, -2))
sketch2.addConstraint(Sketcher.Constraint("Symmetric", 9, 3, 26, 3, -2))
sketch2.addConstraint(Sketcher.Constraint("Symmetric", 8, 3, 27, 3, -2))
sketch2.addConstraint(Sketcher.Constraint("Symmetric", 7, 3, 28, 3, -2))
sketch2.addConstraint(Sketcher.Constraint("Symmetric", 6, 3, 29, 3, -2))
sketch2.addConstraint(Sketcher.Constraint("Horizontal", 0, 3, 2, 3))
sketch2.addConstraint(Sketcher.Constraint("Horizontal", 2, 3, 3, 3))
sketch2.addConstraint(Sketcher.Constraint("Horizontal", 3, 3, 4, 3))
sketch2.addConstraint(Sketcher.Constraint("Horizontal", 7, 3, 8, 3))
sketch2.addConstraint(Sketcher.Constraint("Horizontal", 16, 3, 17, 3))
sketch2.addConstraint(Sketcher.Constraint("Vertical", 6, 3, 7, 3))
sketch2.addConstraint(Sketcher.Constraint("Vertical", 11, 3, 13, 3))
sketch2.addConstraint(Sketcher.Constraint("Vertical", 13, 3, 14, 3))
sketch2.addConstraint(Sketcher.Constraint("Vertical", 14, 3, 15, 3))
sketch2.addConstraint(Sketcher.Constraint("Vertical", 15, 3, 16, 3))
sketch2.addConstraint(Sketcher.Constraint("Diameter", 0, Q("3 mm")))
sketch2.addConstraint(Sketcher.Constraint("DistanceX", -1, 1, 0, 3, Q("18 mm")))
sketch2.addConstraint(Sketcher.Constraint("DistanceY", -1, 1, 0, 3, Q("15 mm")))
sketch2.addConstraint(Sketcher.Constraint("DistanceX", -1, 1, 1, 3, Q("15 mm")))
sketch2.addConstraint(Sketcher.Constraint("DistanceY", -1, 1, 1, 3, Q("18 mm")))
sketch2.addConstraint(Sketcher.Constraint("DistanceY", -1, 1, 5, 3, Q("5 mm")))
sketch2.addConstraint(Sketcher.Constraint("DistanceX", -1, 1, 17, 3, Q("5 mm")))
sketch2.addConstraint(Sketcher.Constraint("DistanceX", -1, 1, 2, 3, Q("27.9 mm")))
sketch2.addConstraint(Sketcher.Constraint("DistanceX", -1, 1, 3, 3, Q("37.8 mm")))
sketch2.addConstraint(Sketcher.Constraint("DistanceX", -1, 1, 4, 3, Q("47.7 mm")))
sketch2.addConstraint(Sketcher.Constraint("DistanceX", -1, 1, 5, 3, Q("57.6 mm")))
sketch2.addConstraint(Sketcher.Constraint("DistanceY", 13, 3, -1, 1, Q("27.9 mm")))
sketch2.addConstraint(Sketcher.Constraint("DistanceY", 14, 3, -1, 1, Q("47.7 mm")))
sketch2.addConstraint(Sketcher.Constraint("DistanceY", 15, 3, -1, 1, Q("37.8 mm")))
sketch2.addConstraint(Sketcher.Constraint("DistanceY", 16, 3, -1, 1, Q("57.6 mm")))
pad2 = body.newObject("PartDesign::Pad", "Pad001")
pad2.Profile = sketch2
pad2.Length = 1.5875

doc.recompute()
